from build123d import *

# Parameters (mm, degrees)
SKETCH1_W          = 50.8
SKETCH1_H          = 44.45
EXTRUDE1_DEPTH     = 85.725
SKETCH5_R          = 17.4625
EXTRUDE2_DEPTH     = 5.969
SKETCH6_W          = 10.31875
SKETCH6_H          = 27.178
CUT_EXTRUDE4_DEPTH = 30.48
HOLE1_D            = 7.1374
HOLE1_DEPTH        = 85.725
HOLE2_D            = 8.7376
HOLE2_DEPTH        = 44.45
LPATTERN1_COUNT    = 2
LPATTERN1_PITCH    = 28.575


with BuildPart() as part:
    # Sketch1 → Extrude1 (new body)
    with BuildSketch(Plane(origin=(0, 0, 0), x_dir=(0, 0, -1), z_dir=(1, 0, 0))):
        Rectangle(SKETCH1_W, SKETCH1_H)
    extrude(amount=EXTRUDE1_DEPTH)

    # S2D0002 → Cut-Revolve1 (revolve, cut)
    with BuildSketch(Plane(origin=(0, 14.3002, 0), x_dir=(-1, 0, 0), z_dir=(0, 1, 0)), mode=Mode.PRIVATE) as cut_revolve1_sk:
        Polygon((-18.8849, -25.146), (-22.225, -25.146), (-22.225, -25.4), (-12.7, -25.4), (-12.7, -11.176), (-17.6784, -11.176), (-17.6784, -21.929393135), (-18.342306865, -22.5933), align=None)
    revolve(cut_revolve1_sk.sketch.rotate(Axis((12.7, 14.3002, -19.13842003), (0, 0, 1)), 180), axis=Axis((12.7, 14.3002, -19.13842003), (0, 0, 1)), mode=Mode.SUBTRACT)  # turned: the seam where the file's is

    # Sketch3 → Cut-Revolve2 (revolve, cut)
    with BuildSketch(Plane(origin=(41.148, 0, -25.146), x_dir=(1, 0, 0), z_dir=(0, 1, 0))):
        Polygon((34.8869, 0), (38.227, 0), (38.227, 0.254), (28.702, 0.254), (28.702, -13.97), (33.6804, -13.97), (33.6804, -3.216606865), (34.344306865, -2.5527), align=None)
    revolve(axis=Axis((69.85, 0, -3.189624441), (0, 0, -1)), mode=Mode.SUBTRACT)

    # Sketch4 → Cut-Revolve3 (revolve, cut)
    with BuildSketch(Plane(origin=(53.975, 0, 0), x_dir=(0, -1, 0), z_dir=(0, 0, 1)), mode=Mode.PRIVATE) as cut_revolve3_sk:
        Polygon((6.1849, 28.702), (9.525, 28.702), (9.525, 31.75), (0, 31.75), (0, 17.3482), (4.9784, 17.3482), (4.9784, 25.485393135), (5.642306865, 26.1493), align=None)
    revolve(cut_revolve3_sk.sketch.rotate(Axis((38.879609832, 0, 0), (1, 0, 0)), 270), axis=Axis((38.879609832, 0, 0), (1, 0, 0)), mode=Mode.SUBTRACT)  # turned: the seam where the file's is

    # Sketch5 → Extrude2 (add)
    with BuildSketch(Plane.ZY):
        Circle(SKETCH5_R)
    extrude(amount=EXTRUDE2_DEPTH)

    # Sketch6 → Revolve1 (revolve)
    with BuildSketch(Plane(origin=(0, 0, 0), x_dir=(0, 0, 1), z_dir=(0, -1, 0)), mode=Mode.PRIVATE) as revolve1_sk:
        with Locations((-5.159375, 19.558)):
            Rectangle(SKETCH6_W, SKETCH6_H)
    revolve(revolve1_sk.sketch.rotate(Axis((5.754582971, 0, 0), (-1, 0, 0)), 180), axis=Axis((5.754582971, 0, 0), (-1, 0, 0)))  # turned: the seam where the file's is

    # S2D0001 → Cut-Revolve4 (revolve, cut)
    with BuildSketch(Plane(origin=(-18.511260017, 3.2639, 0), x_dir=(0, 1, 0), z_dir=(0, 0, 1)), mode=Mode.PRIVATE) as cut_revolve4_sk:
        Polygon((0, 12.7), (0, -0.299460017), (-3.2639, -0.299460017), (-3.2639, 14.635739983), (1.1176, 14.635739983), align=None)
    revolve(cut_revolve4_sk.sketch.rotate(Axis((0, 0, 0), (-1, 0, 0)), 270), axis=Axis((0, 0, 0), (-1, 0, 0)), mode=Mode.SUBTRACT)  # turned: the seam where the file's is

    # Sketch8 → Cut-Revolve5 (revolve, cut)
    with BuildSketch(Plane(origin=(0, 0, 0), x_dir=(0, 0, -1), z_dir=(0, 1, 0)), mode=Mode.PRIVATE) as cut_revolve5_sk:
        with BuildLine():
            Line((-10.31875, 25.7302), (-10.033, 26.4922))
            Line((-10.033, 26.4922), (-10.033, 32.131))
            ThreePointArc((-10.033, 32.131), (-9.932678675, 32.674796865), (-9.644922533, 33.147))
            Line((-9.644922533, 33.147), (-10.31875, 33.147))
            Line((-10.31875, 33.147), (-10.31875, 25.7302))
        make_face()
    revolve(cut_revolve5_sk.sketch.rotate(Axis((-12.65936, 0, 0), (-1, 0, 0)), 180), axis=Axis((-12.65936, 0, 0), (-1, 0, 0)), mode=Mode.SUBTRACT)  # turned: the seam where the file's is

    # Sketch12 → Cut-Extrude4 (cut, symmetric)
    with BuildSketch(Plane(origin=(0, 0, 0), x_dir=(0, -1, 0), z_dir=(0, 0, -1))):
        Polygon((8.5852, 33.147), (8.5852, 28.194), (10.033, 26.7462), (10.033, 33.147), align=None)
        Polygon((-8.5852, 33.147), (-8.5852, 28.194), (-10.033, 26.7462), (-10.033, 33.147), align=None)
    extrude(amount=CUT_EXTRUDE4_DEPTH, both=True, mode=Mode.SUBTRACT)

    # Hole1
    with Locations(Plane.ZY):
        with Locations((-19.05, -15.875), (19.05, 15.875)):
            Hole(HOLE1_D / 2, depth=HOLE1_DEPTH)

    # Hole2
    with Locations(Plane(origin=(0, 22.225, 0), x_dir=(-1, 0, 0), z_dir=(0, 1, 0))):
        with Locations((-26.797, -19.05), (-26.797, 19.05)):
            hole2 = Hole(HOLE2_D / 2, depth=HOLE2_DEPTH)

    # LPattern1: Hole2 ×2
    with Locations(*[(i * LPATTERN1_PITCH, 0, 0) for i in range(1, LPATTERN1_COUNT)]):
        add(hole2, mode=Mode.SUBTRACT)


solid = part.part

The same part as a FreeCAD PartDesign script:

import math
import FreeCAD as App
import Part
import Sketcher

V = App.Vector
Q = App.Units.Quantity


def add_polygon(sketch, points):
    """Adds a closed chain of lines whose ends are joined by coincident constraints."""
    first, n = sketch.GeometryCount, len(points)
    for a, b in zip(points, points[1:] + points[:1]):
        sketch.addGeometry(Part.LineSegment(App.Vector(*a, 0), App.Vector(*b, 0)), False)
    for i in range(n):
        sketch.addConstraint(Sketcher.Constraint("Coincident", first + i, 2, first + (i + 1) % n, 1))

doc = App.newDocument("Part")
body = doc.addObject("PartDesign::Body", "Body")

# Sketch on YZ plane
sketch1 = body.newObject("Sketcher::SketchObject", "Sketch")
sketch1.AttachmentSupport = (doc.getObject("YZ_Plane"), [""])
sketch1.MapMode = "FlatFace"
add_polygon(sketch1, [(22, 25), (-22, 25), (-22, -25), (22, -25)])  # lines 0-3
sketch1.addConstraint(Sketcher.Constraint("Horizontal", 0))
sketch1.addConstraint(Sketcher.Constraint("Vertical", 1))
sketch1.addConstraint(Sketcher.Constraint("Horizontal", 2))
sketch1.addConstraint(Sketcher.Constraint("Vertical", 3))
sketch1.addConstraint(Sketcher.Constraint("Symmetric", 0, 2, 2, 2, -1, 1))
sketch1.addConstraint(Sketcher.Constraint("DistanceY", 1, 2, 1, 1, Q("2 in")))
sketch1.addConstraint(Sketcher.Constraint("DistanceX", 0, 2, 0, 1, Q("1.75 in")))
pad1 = body.newObject("PartDesign::Pad", "Pad")
pad1.Profile = sketch1
pad1.Length = Q("3.375 in")

# Sketch on XZ plane
sketch2 = body.newObject("Sketcher::SketchObject", "Sketch001")
sketch2.AttachmentSupport = (doc.getObject("XZ_Plane"), [""])
sketch2.MapMode = "FlatFace"
sketch2.AttachmentOffset = App.Placement(V(0, 0, -0.563 * 25.4), App.Rotation())
add_polygon(sketch2, [(18.88, -25.15), (22.23, -25.15), (22.23, -25.4), (12.7, -25.4), (12.7, -11.18), (17.68, -11.18), (17.68, -21.93), (18.34, -22.59)])  # lines 0-7
sketch2.addGeometry(Part.LineSegment(V(12.7, -25.4, 0), V(12.7, -11.18, 0)), True)  # axis
sketch2.addConstraint(Sketcher.Constraint("Horizontal", 0))
sketch2.addConstraint(Sketcher.Constraint("Vertical", 1))
sketch2.addConstraint(Sketcher.Constraint("Horizontal", 2))
sketch2.addConstraint(Sketcher.Constraint("Vertical", 3))
sketch2.addConstraint(Sketcher.Constraint("Horizontal", 4))
sketch2.addConstraint(Sketcher.Constraint("Vertical", 5))
sketch2.addConstraint(Sketcher.Constraint("Vertical", 8))
sketch2.addConstraint(Sketcher.Constraint("Coincident", 8, 1, 2, 2))
sketch2.addConstraint(Sketcher.Constraint("Horizontal", 4, 2, 8, 2))
sketch2.addConstraint(Sketcher.Constraint("DistanceY", 1, 2, -1, 1, Q("1 in")))
sketch2.addConstraint(Sketcher.Constraint("Angle", 6, Q("-45 deg")))
sketch2.addConstraint(Sketcher.Constraint("Angle", 7, Q("-78 deg")))
sketch2.addConstraint(Sketcher.Constraint("DistanceY", 1, 2, 1, 1, Q("0.01 in")))
sketch2.addConstraint(Sketcher.Constraint("DistanceY", 3, 1, 3, 2, Q("0.56 in")))
sketch2.addConstraint(Sketcher.Constraint("DistanceX", -1, 1, 2, 2, Q("0.5 in")))
sketch2.addConstraint(Sketcher.Constraint("DistanceX", 2, 2, 2, 1, Q("0.375 in")))
sketch2.addConstraint(Sketcher.Constraint("DistanceX", 4, 1, 4, 2, Q("0.196 in")))
sketch2.addConstraint(Sketcher.Constraint("DistanceX", 0, 1, 0, 2, Q("0.1315 in")))
sketch2.addConstraint(Sketcher.Constraint("DistanceY", 6, 2, -1, 1, Q("0.8895 in")))
groove = body.newObject("PartDesign::Groove", "Groove")
groove.Profile = sketch2
groove.ReferenceAxis = (sketch2, ["Axis0"])
groove.Angle = 360

# Sketch on XZ plane
sketch3 = body.newObject("Sketcher::SketchObject", "Sketch002")
sketch3.AttachmentSupport = (doc.getObject("XZ_Plane"), [""])
sketch3.MapMode = "FlatFace"
add_polygon(sketch3, [(76.03, -25.15), (79.38, -25.15), (79.38, -25.4), (69.85, -25.4), (69.85, -11.18), (74.83, -11.18), (74.83, -21.93), (75.49, -22.59)])  # lines 0-7
sketch3.addGeometry(Part.LineSegment(V(69.85, -11.18, 0), V(69.85, -25.4, 0)), True)  # axis
sketch3.addConstraint(Sketcher.Constraint("Horizontal", 0))
sketch3.addConstraint(Sketcher.Constraint("Vertical", 1))
sketch3.addConstraint(Sketcher.Constraint("Horizontal", 2))
sketch3.addConstraint(Sketcher.Constraint("Vertical", 3))
sketch3.addConstraint(Sketcher.Constraint("Horizontal", 4))
sketch3.addConstraint(Sketcher.Constraint("Vertical", 5))
sketch3.addConstraint(Sketcher.Constraint("Vertical", 8))
sketch3.addConstraint(Sketcher.Constraint("Coincident", 8, 1, 3, 2))
sketch3.addConstraint(Sketcher.Constraint("Horizontal", 1, 2, 8, 2))
sketch3.addConstraint(Sketcher.Constraint("DistanceY", 1, 2, -1, 1, Q("1 in")))
sketch3.addConstraint(Sketcher.Constraint("Angle", 6, Q("-45 deg")))
sketch3.addConstraint(Sketcher.Constraint("Angle", 7, Q("-78 deg")))
sketch3.addConstraint(Sketcher.Constraint("DistanceY", 1, 2, 1, 1, Q("0.01 in")))
sketch3.addConstraint(Sketcher.Constraint("DistanceY", 3, 1, 3, 2, Q("0.56 in")))
sketch3.addConstraint(Sketcher.Constraint("DistanceX", 2, 2, 2, 1, Q("0.375 in")))
sketch3.addConstraint(Sketcher.Constraint("DistanceX", 4, 1, 4, 2, Q("0.196 in")))
sketch3.addConstraint(Sketcher.Constraint("DistanceX", -1, 1, 2, 2, Q("2.75 in")))
sketch3.addConstraint(Sketcher.Constraint("DistanceX", 0, 1, 0, 2, Q("0.1315 in")))
sketch3.addConstraint(Sketcher.Constraint("DistanceY", 6, 2, -1, 1, Q("0.8895 in")))
groove2 = body.newObject("PartDesign::Groove", "Groove001")
groove2.Profile = sketch3
groove2.ReferenceAxis = (sketch3, ["Axis0"])
groove2.Angle = 360

# Sketch on XY plane
sketch4 = body.newObject("Sketcher::SketchObject", "Sketch003")
sketch4.AttachmentSupport = (doc.getObject("XY_Plane"), [""])
sketch4.MapMode = "FlatFace"
add_polygon(sketch4, [(82.7, -6.2), (82.7, -9.5), (85.7, -9.5), (85.7, 0), (71.3, 0), (71.3, -5), (79.5, -5), (80.1, -5.6)])  # lines 0-7
sketch4.addConstraint(Sketcher.Constraint("Vertical", 0))
sketch4.addConstraint(Sketcher.Constraint("Horizontal", 1))
sketch4.addConstraint(Sketcher.Constraint("Vertical", 2))
sketch4.addConstraint(Sketcher.Constraint("Horizontal", 3))
sketch4.addConstraint(Sketcher.Constraint("Vertical", 4))
sketch4.addConstraint(Sketcher.Constraint("Horizontal", 5))
sketch4.addConstraint(Sketcher.Constraint("PointOnObject", 2, 2, -1))
sketch4.addConstraint(Sketcher.Constraint("Angle", 6, Q("-45 deg")))
sketch4.addConstraint(Sketcher.Constraint("Angle", 7, Q("-12 deg")))
sketch4.addConstraint(Sketcher.Constraint("DistanceX", 1, 1, 1, 2, Q("0.12 in")))
sketch4.addConstraint(Sketcher.Constraint("DistanceX", 3, 2, 3, 1, Q("0.567 in")))
sketch4.addConstraint(Sketcher.Constraint("DistanceY", 2, 1, 2, 2, Q("0.375 in")))
sketch4.addConstraint(Sketcher.Constraint("DistanceY", 4, 2, 4, 1, Q("0.196 in")))
sketch4.addConstraint(Sketcher.Constraint("DistanceY", 0, 2, 0, 1, Q("0.1315 in")))
sketch4.addConstraint(Sketcher.Constraint("DistanceX", -1, 1, 0, 2, Q("3.255 in")))
sketch4.addConstraint(Sketcher.Constraint("DistanceX", -1, 1, 6, 2, Q("3.1545 in")))
groove3 = body.newObject("PartDesign::Groove", "Groove002")
groove3.Profile = sketch4
groove3.ReferenceAxis = (sketch4, ["H_Axis"])
groove3.Angle = 360

# Sketch on YZ plane
sketch5 = body.newObject("Sketcher::SketchObject", "Sketch004")
sketch5.AttachmentSupport = (doc.getObject("YZ_Plane"), [""])
sketch5.MapMode = "FlatFace"
sketch5.addGeometry(Part.Circle(V(0, 0, 0), V(0, 0, 1), 17), False)
sketch5.addConstraint(Sketcher.Constraint("Coincident", 0, 3, -1, 1))
sketch5.addConstraint(Sketcher.Constraint("Diameter", 0, Q("1.375 in")))
pad2 = body.newObject("PartDesign::Pad", "Pad001")
pad2.Profile = sketch5
pad2.Length = Q("0.235 in")
pad2.Reversed = True

# Sketch on XZ plane
sketch6 = body.newObject("Sketcher::SketchObject", "Sketch005")
sketch6.AttachmentSupport = (doc.getObject("XZ_Plane"), [""])
sketch6.MapMode = "FlatFace"
add_polygon(sketch6, [(-33, -10), (-6, -10), (-6, 0), (-33, 0)])  # lines 0-3
sketch6.addConstraint(Sketcher.Constraint("Horizontal", 0))
sketch6.addConstraint(Sketcher.Constraint("Vertical", 1))
sketch6.addConstraint(Sketcher.Constraint("Horizontal", 2))
sketch6.addConstraint(Sketcher.Constraint("Vertical", 3))
sketch6.addConstraint(Sketcher.Constraint("PointOnObject", 1, 2, -1))
sketch6.addConstraint(Sketcher.Constraint("DistanceX", 0, 1, 0, 2, Q("1.07 in")))
sketch6.addConstraint(Sketcher.Constraint("DistanceY", 1, 1, 1, 2, Q("0.40625 in")))
sketch6.addConstraint(Sketcher.Constraint("DistanceX", 0, 2, -1, 1, Q("0.235 in")))
revolution = body.newObject("PartDesign::Revolution", "Revolution")
revolution.Profile = sketch6
revolution.ReferenceAxis = (sketch6, ["H_Axis"])
revolution.Angle = 360

# Sketch on XY plane
sketch7 = body.newObject("Sketcher::SketchObject", "Sketch006")
sketch7.AttachmentSupport = (doc.getObject("XY_Plane"), [""])
sketch7.MapMode = "FlatFace"
add_polygon(sketch7, [(-18.2, 3.3), (-31.2, 3.3), (-33.1, 4.4), (-33.1, 0), (-18.2, 0)])  # lines 0-4
sketch7.addConstraint(Sketcher.Constraint("Horizontal", 0))
sketch7.addConstraint(Sketcher.Constraint("Vertical", 2))
sketch7.addConstraint(Sketcher.Constraint("Horizontal", 3))
sketch7.addConstraint(Sketcher.Constraint("Vertical", 4))
sketch7.addConstraint(Sketcher.Constraint("PointOnObject", 2, 2, -1))
sketch7.addConstraint(Sketcher.Constraint("Angle", 1, Q("150 deg")))
sketch7.addConstraint(Sketcher.Constraint("DistanceX", 3, 1, 3, 2, Q("0.588 in")))
sketch7.addConstraint(Sketcher.Constraint("Distance", 1, Q("0.088 in")))
sketch7.addConstraint(Sketcher.Constraint("DistanceY", 2, 2, 2, 1, Q("0.1725 in")))
sketch7.addConstraint(Sketcher.Constraint("DistanceX", 1, 2, -1, 1, Q("1.305 in")))
groove4 = body.newObject("PartDesign::Groove", "Groove003")
groove4.Profile = sketch7
groove4.ReferenceAxis = (sketch7, ["H_Axis"])
groove4.Angle = 360

# Sketch on XZ plane
sketch8 = body.newObject("Sketcher::SketchObject", "Sketch007")
sketch8.AttachmentSupport = (doc.getObject("XZ_Plane"), [""])
sketch8.MapMode = "FlatFace"
sketch8.addGeometry(Part.LineSegment(V(-25.7, 10.3, 0), V(-26.5, 10, 0)), False)
sketch8.addGeometry(Part.LineSegment(V(-26.5, 10, 0), V(-32.1, 10, 0)), False)
sketch8.addGeometry(Part.ArcOfCircle(Part.Circle(V(-32.1, 8.5, 0), V(0, 0, 1), 1.5), math.radians(90), math.radians(132)), False)
sketch8.addGeometry(Part.LineSegment(V(-33.1, 9.6, 0), V(-33.1, 10.3, 0)), False)
sketch8.addGeometry(Part.LineSegment(V(-33.1, 10.3, 0), V(-25.7, 10.3, 0)), False)
sketch8.addConstraint(Sketcher.Constraint("Coincident", 0, 2, 1, 1))
sketch8.addConstraint(Sketcher.Constraint("Tangent", 1, 2, 2, 1))
sketch8.addConstraint(Sketcher.Constraint("Coincident", 2, 2, 3, 1))
sketch8.addConstraint(Sketcher.Constraint("Coincident", 3, 2, 4, 1))
sketch8.addConstraint(Sketcher.Constraint("Coincident", 4, 2, 0, 1))
sketch8.addConstraint(Sketcher.Constraint("Horizontal", 1))
sketch8.addConstraint(Sketcher.Constraint("Vertical", 3))
sketch8.addConstraint(Sketcher.Constraint("Horizontal", 4))
sketch8.addConstraint(Sketcher.Constraint("Radius", 2, Q("0.06 in")))
sketch8.addConstraint(Sketcher.Constraint("DistanceX", 1, 2, 1, 1, Q("0.222 in")))
sketch8.addConstraint(Sketcher.Constraint("DistanceX", 4, 1, 4, 2, Q("0.292 in")))
sketch8.addConstraint(Sketcher.Constraint("DistanceX", 2, 2, 1, 2, Q("0.04 in")))
sketch8.addConstraint(Sketcher.Constraint("DistanceX", 2, 3, -1, 1, Q("1.265 in")))
sketch8.addConstraint(Sketcher.Constraint("DistanceY", -1, 1, 2, 3, Q("0.335 in")))
sketch8.addConstraint(Sketcher.Constraint("DistanceY", -1, 1, 3, 2, Q("0.40625 in")))
groove5 = body.newObject("PartDesign::Groove", "Groove004")
groove5.Profile = sketch8
groove5.ReferenceAxis = (sketch8, ["H_Axis"])
groove5.Angle = 360

# Sketch on XY plane
sketch9 = body.newObject("Sketcher::SketchObject", "Sketch008")
sketch9.AttachmentSupport = (doc.getObject("XY_Plane"), [""])
sketch9.MapMode = "FlatFace"
add_polygon(sketch9, [(-33.1, -8.6), (-28.2, -8.6), (-26.7, -10), (-33.1, -10)])  # lines 0-3
add_polygon(sketch9, [(-28.2, 8.6), (-33.1, 8.6), (-33.1, 10), (-26.7, 10)])  # lines 4-7
sketch9.addConstraint(Sketcher.Constraint("Horizontal", 0))
sketch9.addConstraint(Sketcher.Constraint("Horizontal", 2))
sketch9.addConstraint(Sketcher.Constraint("Vertical", 3))
sketch9.addConstraint(Sketcher.Constraint("Horizontal", 4))
sketch9.addConstraint(Sketcher.Constraint("Vertical", 5))
sketch9.addConstraint(Sketcher.Constraint("Horizontal", 6))
sketch9.addConstraint(Sketcher.Constraint("Symmetric", 3, 2, 4, 2, -1))
sketch9.addConstraint(Sketcher.Constraint("Symmetric", 1, 2, 6, 2, -1))
sketch9.addConstraint(Sketcher.Constraint("Perpendicular", 1, 7))
sketch9.addConstraint(Sketcher.Constraint("Vertical", 0, 2, 7, 2))
sketch9.addConstraint(Sketcher.Constraint("DistanceX", 0, 1, 0, 2, Q("0.195 in")))
sketch9.addConstraint(Sketcher.Constraint("DistanceX", 2, 2, 2, 1, Q("0.252 in")))
sketch9.addConstraint(Sketcher.Constraint("DistanceX", 0, 2, -1, 1, Q("1.11 in")))
sketch9.addConstraint(Sketcher.Constraint("DistanceY", 2, 2, 5, 2, Q("0.79 in")))
pocket1 = body.newObject("PartDesign::Pocket", "Pocket")
pocket1.Profile = sketch9
pocket1.Length = Q("2.4 in")
pocket1.Midplane = True

# Sketch on YZ plane
sketch10 = body.newObject("Sketcher::SketchObject", "Sketch009")
sketch10.AttachmentSupport = (doc.getObject("YZ_Plane"), [""])
sketch10.MapMode = "FlatFace"
sketch10.addGeometry(Part.Circle(V(-15.9, -19.1, 0), V(0, 0, 1), 3.6), False)
sketch10.addGeometry(Part.Circle(V(15.9, 19.1, 0), V(0, 0, 1), 3.6), False)
sketch10.addConstraint(Sketcher.Constraint("Equal", 0, 1))
sketch10.addConstraint(Sketcher.Constraint("Symmetric", 0, 3, 1, 3, -1, 1))
sketch10.addConstraint(Sketcher.Constraint("Diameter", 0, Q("0.281 in")))
sketch10.addConstraint(Sketcher.Constraint("DistanceY", 0, 3, 1, 3, Q("1.5 in")))
sketch10.addConstraint(Sketcher.Constraint("DistanceX", 0, 3, 1, 3, Q("1.25 in")))
doc.recompute()
hole = body.newObject("PartDesign::Hole", "Hole")
hole.Profile = sketch10
hole.ThreadType = "None"
hole.Diameter = Q("0.281 in")
hole.DepthType = "Dimension"
hole.Depth = Q("3.375 in")
hole.DrillPoint = "Flat"
hole.Reversed = True

# Sketch on XZ plane
sketch11 = body.newObject("Sketcher::SketchObject", "Sketch010")
sketch11.AttachmentSupport = (doc.getObject("XZ_Plane"), [""])
sketch11.MapMode = "FlatFace"
sketch11.AttachmentOffset = App.Placement(V(0, 0, -0.875 * 25.4), App.Rotation())
sketch11.addGeometry(Part.Circle(V(26.8, -19.1, 0), V(0, 0, 1), 4.4), False)
sketch11.addGeometry(Part.Circle(V(26.8, 19.1, 0), V(0, 0, 1), 4.4), False)
sketch11.addConstraint(Sketcher.Constraint("Equal", 0, 1))
sketch11.addConstraint(Sketcher.Constraint("Symmetric", 0, 3, 1, 3, -1))
sketch11.addConstraint(Sketcher.Constraint("Diameter", 0, Q("0.344 in")))
sketch11.addConstraint(Sketcher.Constraint("DistanceY", 0, 3, 1, 3, Q("1.5 in")))
sketch11.addConstraint(Sketcher.Constraint("DistanceX", -1, 1, 0, 3, Q("1.055 in")))
doc.recompute()
hole2 = body.newObject("PartDesign::Hole", "Hole001")
hole2.Profile = sketch11
hole2.ThreadType = "None"
hole2.Diameter = Q("0.344 in")
hole2.DepthType = "Dimension"
hole2.Depth = Q("1.75 in")
hole2.DrillPoint = "Flat"
hole2.Reversed = True
doc.recompute()

linearpattern = body.newObject("PartDesign::LinearPattern", "LinearPattern")
linearpattern.Originals = [hole2]
linearpattern.Direction = (doc.getObject("X_Axis"), [""])
linearpattern.Mode = "offset"
linearpattern.Offset = Q("1.125 in")
linearpattern.Occurrences = 2
body.Tip = linearpattern

doc.recompute()
